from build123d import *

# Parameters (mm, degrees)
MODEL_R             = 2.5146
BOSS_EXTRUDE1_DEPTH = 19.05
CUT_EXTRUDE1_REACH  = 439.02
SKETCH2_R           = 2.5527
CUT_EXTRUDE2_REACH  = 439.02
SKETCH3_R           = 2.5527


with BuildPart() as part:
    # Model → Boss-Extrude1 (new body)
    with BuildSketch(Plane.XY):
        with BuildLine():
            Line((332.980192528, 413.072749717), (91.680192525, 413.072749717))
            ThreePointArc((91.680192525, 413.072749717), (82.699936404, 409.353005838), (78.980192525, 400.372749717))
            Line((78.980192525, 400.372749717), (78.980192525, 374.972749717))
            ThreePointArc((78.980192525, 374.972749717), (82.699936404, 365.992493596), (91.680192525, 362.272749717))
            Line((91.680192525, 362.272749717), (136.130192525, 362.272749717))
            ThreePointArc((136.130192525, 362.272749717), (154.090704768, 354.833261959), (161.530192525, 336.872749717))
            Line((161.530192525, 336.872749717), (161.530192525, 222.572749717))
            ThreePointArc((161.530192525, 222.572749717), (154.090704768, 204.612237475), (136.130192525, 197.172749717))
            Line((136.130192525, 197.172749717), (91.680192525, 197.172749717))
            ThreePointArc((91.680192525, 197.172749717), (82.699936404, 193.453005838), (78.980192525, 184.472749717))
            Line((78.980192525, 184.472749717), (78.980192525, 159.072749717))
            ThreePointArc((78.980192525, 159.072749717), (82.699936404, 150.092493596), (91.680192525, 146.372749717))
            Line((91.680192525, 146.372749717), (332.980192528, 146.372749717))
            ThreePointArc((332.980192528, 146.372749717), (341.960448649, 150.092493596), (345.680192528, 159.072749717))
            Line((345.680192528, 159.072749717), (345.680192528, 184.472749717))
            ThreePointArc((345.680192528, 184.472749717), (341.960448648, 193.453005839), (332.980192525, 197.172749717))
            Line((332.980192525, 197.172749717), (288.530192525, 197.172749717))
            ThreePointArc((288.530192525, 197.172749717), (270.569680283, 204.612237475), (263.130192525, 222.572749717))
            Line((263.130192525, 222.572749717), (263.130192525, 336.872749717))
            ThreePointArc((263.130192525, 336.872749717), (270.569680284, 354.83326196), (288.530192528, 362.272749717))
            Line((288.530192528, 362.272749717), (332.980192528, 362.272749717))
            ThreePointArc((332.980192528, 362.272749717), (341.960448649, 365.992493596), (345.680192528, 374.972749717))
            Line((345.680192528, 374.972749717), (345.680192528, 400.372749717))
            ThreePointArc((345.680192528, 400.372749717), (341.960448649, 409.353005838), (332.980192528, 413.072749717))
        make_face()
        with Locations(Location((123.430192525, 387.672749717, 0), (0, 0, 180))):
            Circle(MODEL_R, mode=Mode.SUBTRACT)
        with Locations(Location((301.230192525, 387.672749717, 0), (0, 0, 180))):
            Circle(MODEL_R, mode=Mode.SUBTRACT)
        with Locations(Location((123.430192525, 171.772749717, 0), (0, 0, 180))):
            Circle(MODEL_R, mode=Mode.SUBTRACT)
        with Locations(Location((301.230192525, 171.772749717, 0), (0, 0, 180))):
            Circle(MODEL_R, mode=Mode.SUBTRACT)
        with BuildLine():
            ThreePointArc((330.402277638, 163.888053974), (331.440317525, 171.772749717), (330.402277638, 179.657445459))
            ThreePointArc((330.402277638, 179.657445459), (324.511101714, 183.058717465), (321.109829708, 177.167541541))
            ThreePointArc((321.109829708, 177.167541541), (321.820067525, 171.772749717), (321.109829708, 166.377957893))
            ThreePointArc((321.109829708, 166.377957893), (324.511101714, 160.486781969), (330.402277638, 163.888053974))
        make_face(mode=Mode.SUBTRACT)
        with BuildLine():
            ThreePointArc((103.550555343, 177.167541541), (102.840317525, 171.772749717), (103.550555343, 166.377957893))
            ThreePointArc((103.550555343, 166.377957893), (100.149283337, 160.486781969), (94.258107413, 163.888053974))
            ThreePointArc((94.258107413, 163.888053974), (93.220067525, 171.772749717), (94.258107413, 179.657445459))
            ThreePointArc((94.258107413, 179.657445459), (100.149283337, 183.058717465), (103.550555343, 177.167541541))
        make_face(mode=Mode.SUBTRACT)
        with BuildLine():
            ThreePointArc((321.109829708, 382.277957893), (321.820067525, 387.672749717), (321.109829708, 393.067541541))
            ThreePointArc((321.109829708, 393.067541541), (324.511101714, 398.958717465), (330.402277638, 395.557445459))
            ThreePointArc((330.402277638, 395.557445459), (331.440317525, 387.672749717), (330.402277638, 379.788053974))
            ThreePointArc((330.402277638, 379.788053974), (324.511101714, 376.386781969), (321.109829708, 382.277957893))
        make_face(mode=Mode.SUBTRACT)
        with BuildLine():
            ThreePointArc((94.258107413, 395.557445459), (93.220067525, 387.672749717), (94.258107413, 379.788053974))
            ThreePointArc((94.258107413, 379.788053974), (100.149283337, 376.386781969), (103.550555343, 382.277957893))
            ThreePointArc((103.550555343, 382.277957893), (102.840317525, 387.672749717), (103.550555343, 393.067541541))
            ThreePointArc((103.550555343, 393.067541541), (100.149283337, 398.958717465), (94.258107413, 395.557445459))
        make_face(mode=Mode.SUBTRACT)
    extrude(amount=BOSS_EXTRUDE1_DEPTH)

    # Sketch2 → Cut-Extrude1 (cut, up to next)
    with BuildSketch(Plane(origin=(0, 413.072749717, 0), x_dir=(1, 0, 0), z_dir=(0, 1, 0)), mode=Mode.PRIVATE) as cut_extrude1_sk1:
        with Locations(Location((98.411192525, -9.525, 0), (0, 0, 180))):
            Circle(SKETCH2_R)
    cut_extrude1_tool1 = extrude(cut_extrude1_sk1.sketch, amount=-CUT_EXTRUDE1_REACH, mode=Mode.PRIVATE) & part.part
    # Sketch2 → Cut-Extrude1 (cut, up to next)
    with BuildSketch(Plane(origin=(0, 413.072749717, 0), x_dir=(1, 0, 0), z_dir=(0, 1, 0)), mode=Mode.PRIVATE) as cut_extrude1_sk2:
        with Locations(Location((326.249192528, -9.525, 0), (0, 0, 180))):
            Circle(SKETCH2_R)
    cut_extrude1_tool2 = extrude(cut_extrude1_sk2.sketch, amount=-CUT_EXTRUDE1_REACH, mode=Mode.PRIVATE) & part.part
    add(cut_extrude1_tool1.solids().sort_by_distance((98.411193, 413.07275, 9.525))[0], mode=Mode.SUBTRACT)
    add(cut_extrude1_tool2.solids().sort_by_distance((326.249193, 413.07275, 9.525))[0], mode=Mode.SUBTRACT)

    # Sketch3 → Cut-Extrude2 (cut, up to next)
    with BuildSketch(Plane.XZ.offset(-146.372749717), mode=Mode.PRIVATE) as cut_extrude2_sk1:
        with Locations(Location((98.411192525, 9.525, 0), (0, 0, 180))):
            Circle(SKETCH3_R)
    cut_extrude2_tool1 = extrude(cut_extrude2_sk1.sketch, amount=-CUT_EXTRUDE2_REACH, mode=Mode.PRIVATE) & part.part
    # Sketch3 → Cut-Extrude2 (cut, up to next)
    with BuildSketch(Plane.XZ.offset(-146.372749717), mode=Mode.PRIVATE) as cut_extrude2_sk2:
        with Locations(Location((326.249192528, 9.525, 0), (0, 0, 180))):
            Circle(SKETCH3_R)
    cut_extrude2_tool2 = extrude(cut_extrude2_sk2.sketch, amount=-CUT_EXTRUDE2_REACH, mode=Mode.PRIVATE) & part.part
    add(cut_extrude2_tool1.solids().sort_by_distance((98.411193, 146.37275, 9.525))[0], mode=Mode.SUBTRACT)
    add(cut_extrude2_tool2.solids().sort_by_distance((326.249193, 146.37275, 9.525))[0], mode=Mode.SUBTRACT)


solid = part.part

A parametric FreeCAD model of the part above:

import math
import FreeCAD as App
import Part
import Sketcher
Q = App.Units.Quantity

doc = App.newDocument("Part")
body = doc.addObject("PartDesign::Body", "Body")

sketch1 = body.newObject("Sketcher::SketchObject", "Sketch")
sketch1.AttachmentSupport = (doc.getObject("XY_Plane"), [""])
sketch1.MapMode = "FlatFace"
sketch1.addGeometry(Part.LineSegment(App.Vector(333, 413.1, 0), App.Vector(91.7, 413.1, 0)), False)
sketch1.addGeometry(Part.ArcOfCircle(Part.Circle(App.Vector(91.7, 400.4, 0), App.Vector(0, 0, 1), 12.7), math.radians(90), math.radians(180)), False)
sketch1.addGeometry(Part.LineSegment(App.Vector(79, 400.4, 0), App.Vector(79, 375, 0)), False)
sketch1.addGeometry(Part.ArcOfCircle(Part.Circle(App.Vector(91.7, 375, 0), App.Vector(0, 0, 1), 12.7), math.radians(180), math.radians(270)), False)
sketch1.addGeometry(Part.LineSegment(App.Vector(91.7, 362.3, 0), App.Vector(136.1, 362.3, 0)), False)
sketch1.addGeometry(Part.ArcOfCircle(Part.Circle(App.Vector(136.1, 336.9, 0), App.Vector(0, 0, 1), 25.4), math.radians(0), math.radians(90)), False)
sketch1.addGeometry(Part.LineSegment(App.Vector(161.5, 336.9, 0), App.Vector(161.5, 222.6, 0)), False)
sketch1.addGeometry(Part.ArcOfCircle(Part.Circle(App.Vector(136.1, 222.6, 0), App.Vector(0, 0, 1), 25.4), math.radians(-90), math.radians(0)), False)
sketch1.addGeometry(Part.LineSegment(App.Vector(136.1, 197.2, 0), App.Vector(91.7, 197.2, 0)), False)
sketch1.addGeometry(Part.ArcOfCircle(Part.Circle(App.Vector(91.7, 184.5, 0), App.Vector(0, 0, 1), 12.7), math.radians(90), math.radians(180)), False)
sketch1.addGeometry(Part.LineSegment(App.Vector(79, 184.5, 0), App.Vector(79, 159.1, 0)), False)
sketch1.addGeometry(Part.ArcOfCircle(Part.Circle(App.Vector(91.7, 159.1, 0), App.Vector(0, 0, 1), 12.7), math.radians(180), math.radians(270)), False)
sketch1.addGeometry(Part.LineSegment(App.Vector(91.7, 146.4, 0), App.Vector(333, 146.4, 0)), False)
sketch1.addGeometry(Part.ArcOfCircle(Part.Circle(App.Vector(333, 159.1, 0), App.Vector(0, 0, 1), 12.7), math.radians(-90), math.radians(0)), False)
sketch1.addGeometry(Part.LineSegment(App.Vector(345.7, 159.1, 0), App.Vector(345.7, 184.5, 0)), False)
sketch1.addGeometry(Part.ArcOfCircle(Part.Circle(App.Vector(333, 184.5, 0), App.Vector(0, 0, 1), 12.7), math.radians(0), math.radians(90)), False)
sketch1.addGeometry(Part.LineSegment(App.Vector(333, 197.2, 0), App.Vector(288.5, 197.2, 0)), False)
sketch1.addGeometry(Part.ArcOfCircle(Part.Circle(App.Vector(288.5, 222.6, 0), App.Vector(0, 0, 1), 25.4), math.radians(180), math.radians(270)), False)
sketch1.addGeometry(Part.LineSegment(App.Vector(263.1, 222.6, 0), App.Vector(263.1, 336.9, 0)), False)
sketch1.addGeometry(Part.ArcOfCircle(Part.Circle(App.Vector(288.5, 336.9, 0), App.Vector(0, 0, 1), 25.4), math.radians(90), math.radians(180)), False)
sketch1.addGeometry(Part.LineSegment(App.Vector(288.5, 362.3, 0), App.Vector(333, 362.3, 0)), False)
sketch1.addGeometry(Part.ArcOfCircle(Part.Circle(App.Vector(333, 375, 0), App.Vector(0, 0, 1), 12.7), math.radians(-90), math.radians(0)), False)
sketch1.addGeometry(Part.LineSegment(App.Vector(345.7, 375, 0), App.Vector(345.7, 400.4, 0)), False)
sketch1.addGeometry(Part.ArcOfCircle(Part.Circle(App.Vector(333, 400.4, 0), App.Vector(0, 0, 1), 12.7), math.radians(0), math.radians(90)), False)
sketch1.addGeometry(Part.ArcOfCircle(Part.Circle(App.Vector(98.9, 178.4, 0), App.Vector(0, 0, 1), 4.8), math.radians(-15), math.radians(165)), False)
sketch1.addGeometry(Part.ArcOfCircle(Part.Circle(App.Vector(123.7, 171.8, 0), App.Vector(0, 0, 1), 20.8), math.radians(165), math.radians(195)), False)
sketch1.addGeometry(Part.ArcOfCircle(Part.Circle(App.Vector(98.9, 165.1, 0), App.Vector(0, 0, 1), 4.8), math.radians(-165), math.radians(15)), False)
sketch1.addGeometry(Part.ArcOfCircle(Part.Circle(App.Vector(123.7, 171.8, 0), App.Vector(0, 0, 1), 30.5), math.radians(165), math.radians(195)), False)
sketch1.addGeometry(Part.Circle(App.Vector(123.4, 171.8, 0), App.Vector(0, 0, 1), 2.5), False)
sketch1.addGeometry(Part.Circle(App.Vector(301.2, 171.8, 0), App.Vector(0, 0, 1), 2.5), False)
sketch1.addGeometry(Part.ArcOfCircle(Part.Circle(App.Vector(301, 171.8, 0), App.Vector(0, 0, 1), 30.5), math.radians(-15), math.radians(15)), False)
sketch1.addGeometry(Part.ArcOfCircle(Part.Circle(App.Vector(325.8, 165.1, 0), App.Vector(0, 0, 1), 4.8), math.radians(165), math.radians(345)), False)
sketch1.addGeometry(Part.ArcOfCircle(Part.Circle(App.Vector(301, 171.8, 0), App.Vector(0, 0, 1), 20.8), math.radians(-15), math.radians(15)), False)
sketch1.addGeometry(Part.ArcOfCircle(Part.Circle(App.Vector(325.8, 178.4, 0), App.Vector(0, 0, 1), 4.8), math.radians(15), math.radians(195)), False)
sketch1.addGeometry(Part.ArcOfCircle(Part.Circle(App.Vector(123.7, 387.7, 0), App.Vector(0, 0, 1), 30.5), math.radians(165), math.radians(195)), False)
sketch1.addGeometry(Part.ArcOfCircle(Part.Circle(App.Vector(98.9, 394.3, 0), App.Vector(0, 0, 1), 4.8), math.radians(-15), math.radians(165)), False)
sketch1.addGeometry(Part.ArcOfCircle(Part.Circle(App.Vector(123.7, 387.7, 0), App.Vector(0, 0, 1), 20.8), math.radians(165), math.radians(195)), False)
sketch1.addGeometry(Part.ArcOfCircle(Part.Circle(App.Vector(98.9, 381, 0), App.Vector(0, 0, 1), 4.8), math.radians(-165), math.radians(15)), False)
sketch1.addGeometry(Part.Circle(App.Vector(123.4, 387.7, 0), App.Vector(0, 0, 1), 2.5), False)
sketch1.addGeometry(Part.Circle(App.Vector(301.2, 387.7, 0), App.Vector(0, 0, 1), 2.5), False)
sketch1.addGeometry(Part.ArcOfCircle(Part.Circle(App.Vector(325.8, 381, 0), App.Vector(0, 0, 1), 4.8), math.radians(165), math.radians(345)), False)
sketch1.addGeometry(Part.ArcOfCircle(Part.Circle(App.Vector(301, 387.7, 0), App.Vector(0, 0, 1), 20.8), math.radians(-15), math.radians(15)), False)
sketch1.addGeometry(Part.ArcOfCircle(Part.Circle(App.Vector(325.8, 394.3, 0), App.Vector(0, 0, 1), 4.8), math.radians(15), math.radians(195)), False)
sketch1.addGeometry(Part.ArcOfCircle(Part.Circle(App.Vector(301, 387.7, 0), App.Vector(0, 0, 1), 30.5), math.radians(-15), math.radians(15)), False)
sketch1.addConstraint(Sketcher.Constraint("Tangent", 0, 2, 1, 1))
sketch1.addConstraint(Sketcher.Constraint("Tangent", 1, 2, 2, 1))
sketch1.addConstraint(Sketcher.Constraint("Tangent", 2, 2, 3, 1))
sketch1.addConstraint(Sketcher.Constraint("Tangent", 3, 2, 4, 1))
sketch1.addConstraint(Sketcher.Constraint("Tangent", 4, 2, 5, 2))
sketch1.addConstraint(Sketcher.Constraint("Tangent", 5, 1, 6, 1))
sketch1.addConstraint(Sketcher.Constraint("Tangent", 6, 2, 7, 2))
sketch1.addConstraint(Sketcher.Constraint("Tangent", 7, 1, 8, 1))
sketch1.addConstraint(Sketcher.Constraint("Tangent", 8, 2, 9, 1))
sketch1.addConstraint(Sketcher.Constraint("Tangent", 9, 2, 10, 1))
sketch1.addConstraint(Sketcher.Constraint("Tangent", 10, 2, 11, 1))
sketch1.addConstraint(Sketcher.Constraint("Tangent", 11, 2, 12, 1))
sketch1.addConstraint(Sketcher.Constraint("Tangent", 12, 2, 13, 1))
sketch1.addConstraint(Sketcher.Constraint("Tangent", 13, 2, 14, 1))
sketch1.addConstraint(Sketcher.Constraint("Tangent", 14, 2, 15, 1))
sketch1.addConstraint(Sketcher.Constraint("Tangent", 15, 2, 16, 1))
sketch1.addConstraint(Sketcher.Constraint("Tangent", 16, 2, 17, 2))
sketch1.addConstraint(Sketcher.Constraint("Tangent", 17, 1, 18, 1))
sketch1.addConstraint(Sketcher.Constraint("Tangent", 18, 2, 19, 2))
sketch1.addConstraint(Sketcher.Constraint("Tangent", 19, 1, 20, 1))
sketch1.addConstraint(Sketcher.Constraint("Tangent", 20, 2, 21, 1))
sketch1.addConstraint(Sketcher.Constraint("Tangent", 21, 2, 22, 1))
sketch1.addConstraint(Sketcher.Constraint("Tangent", 22, 2, 23, 1))
sketch1.addConstraint(Sketcher.Constraint("Tangent", 23, 2, 0, 1))
sketch1.addConstraint(Sketcher.Constraint("Tangent", 24, 1, 25, 1))
sketch1.addConstraint(Sketcher.Constraint("Tangent", 25, 2, 26, 2))
sketch1.addConstraint(Sketcher.Constraint("Tangent", 26, 1, 27, 2))
sketch1.addConstraint(Sketcher.Constraint("Tangent", 27, 1, 24, 2))
sketch1.addConstraint(Sketcher.Constraint("Tangent", 30, 1, 31, 2))
sketch1.addConstraint(Sketcher.Constraint("Tangent", 31, 1, 32, 1))
sketch1.addConstraint(Sketcher.Constraint("Tangent", 32, 2, 33, 2))
sketch1.addConstraint(Sketcher.Constraint("Tangent", 33, 1, 30, 2))
sketch1.addConstraint(Sketcher.Constraint("Tangent", 34, 1, 35, 2))
sketch1.addConstraint(Sketcher.Constraint("Tangent", 35, 1, 36, 1))
sketch1.addConstraint(Sketcher.Constraint("Tangent", 36, 2, 37, 2))
sketch1.addConstraint(Sketcher.Constraint("Tangent", 37, 1, 34, 2))
sketch1.addConstraint(Sketcher.Constraint("Tangent", 40, 1, 41, 1))
sketch1.addConstraint(Sketcher.Constraint("Tangent", 41, 2, 42, 2))
sketch1.addConstraint(Sketcher.Constraint("Tangent", 42, 1, 43, 2))
sketch1.addConstraint(Sketcher.Constraint("Tangent", 43, 1, 40, 2))
sketch1.addConstraint(Sketcher.Constraint("Horizontal", 0))
sketch1.addConstraint(Sketcher.Constraint("Vertical", 2))
sketch1.addConstraint(Sketcher.Constraint("Horizontal", 4))
sketch1.addConstraint(Sketcher.Constraint("Vertical", 6))
sketch1.addConstraint(Sketcher.Constraint("Horizontal", 8))
sketch1.addConstraint(Sketcher.Constraint("Vertical", 10))
sketch1.addConstraint(Sketcher.Constraint("Horizontal", 12))
sketch1.addConstraint(Sketcher.Constraint("Vertical", 14))
sketch1.addConstraint(Sketcher.Constraint("Horizontal", 16))
sketch1.addConstraint(Sketcher.Constraint("Vertical", 18))
sketch1.addConstraint(Sketcher.Constraint("Horizontal", 20))
sketch1.addConstraint(Sketcher.Constraint("Vertical", 22))
sketch1.addConstraint(Sketcher.Constraint("Coincident", 27, 3, 25, 3))
sketch1.addConstraint(Sketcher.Constraint("Coincident", 32, 3, 30, 3))
sketch1.addConstraint(Sketcher.Constraint("Coincident", 36, 3, 34, 3))
sketch1.addConstraint(Sketcher.Constraint("Coincident", 43, 3, 41, 3))
sketch1.addConstraint(Sketcher.Constraint("Equal", 1, 3))
sketch1.addConstraint(Sketcher.Constraint("Equal", 5, 7))
sketch1.addConstraint(Sketcher.Constraint("Equal", 3, 9))
sketch1.addConstraint(Sketcher.Constraint("Equal", 9, 11))
sketch1.addConstraint(Sketcher.Constraint("Equal", 11, 13))
sketch1.addConstraint(Sketcher.Constraint("Equal", 13, 15))
sketch1.addConstraint(Sketcher.Constraint("Equal", 7, 17))
sketch1.addConstraint(Sketcher.Constraint("Equal", 17, 19))
sketch1.addConstraint(Sketcher.Constraint("Equal", 15, 21))
sketch1.addConstraint(Sketcher.Constraint("Equal", 21, 23))
sketch1.addConstraint(Sketcher.Constraint("Equal", 28, 29))
sketch1.addConstraint(Sketcher.Constraint("Equal", 27, 30))
sketch1.addConstraint(Sketcher.Constraint("Equal", 26, 31))
sketch1.addConstraint(Sketcher.Constraint("Equal", 30, 34))
sketch1.addConstraint(Sketcher.Constraint("Equal", 33, 35))
sketch1.addConstraint(Sketcher.Constraint("Equal", 29, 38))
sketch1.addConstraint(Sketcher.Constraint("Equal", 38, 39))
sketch1.addConstraint(Sketcher.Constraint("Equal", 37, 40))
sketch1.addConstraint(Sketcher.Constraint("Equal", 36, 41))
sketch1.addConstraint(Sketcher.Constraint("Horizontal", 9, 3, 15, 3))
sketch1.addConstraint(Sketcher.Constraint("Horizontal", 5, 3, 19, 3))
sketch1.addConstraint(Sketcher.Constraint("Horizontal", 27, 3, 28, 3))
sketch1.addConstraint(Sketcher.Constraint("Horizontal", 28, 3, 29, 3))
sketch1.addConstraint(Sketcher.Constraint("Horizontal", 29, 3, 30, 3))
sketch1.addConstraint(Sketcher.Constraint("Horizontal", 26, 3, 31, 3))
sketch1.addConstraint(Sketcher.Constraint("Horizontal", 24, 3, 33, 3))
sketch1.addConstraint(Sketcher.Constraint("Horizontal", 36, 3, 38, 3))
sketch1.addConstraint(Sketcher.Constraint("Horizontal", 38, 3, 39, 3))
sketch1.addConstraint(Sketcher.Constraint("Horizontal", 37, 3, 40, 3))
sketch1.addConstraint(Sketcher.Constraint("Horizontal", 39, 3, 41, 3))
sketch1.addConstraint(Sketcher.Constraint("Horizontal", 35, 3, 42, 3))
sketch1.addConstraint(Sketcher.Constraint("Vertical", 3, 3, 9, 3))
sketch1.addConstraint(Sketcher.Constraint("Vertical", 15, 3, 21, 3))
sketch1.addConstraint(Sketcher.Constraint("Vertical", 24, 3, 26, 3))
sketch1.addConstraint(Sketcher.Constraint("Vertical", 27, 3, 34, 3))
sketch1.addConstraint(Sketcher.Constraint("Vertical", 26, 3, 35, 3))
sketch1.addConstraint(Sketcher.Constraint("Vertical", 35, 3, 37, 3))
sketch1.addConstraint(Sketcher.Constraint("Vertical", 28, 3, 38, 3))
sketch1.addConstraint(Sketcher.Constraint("Vertical", 29, 3, 39, 3))
sketch1.addConstraint(Sketcher.Constraint("Vertical", 33, 3, 40, 3))
sketch1.addConstraint(Sketcher.Constraint("Equal", 8, 16))
sketch1.addConstraint(Sketcher.Constraint("Equal", 2, 10))
sketch1.addConstraint(Sketcher.Constraint("Radius", 5, Q("1 in")))
sketch1.addConstraint(Sketcher.Constraint("Radius", 1, Q("0.5 in")))
sketch1.addConstraint(Sketcher.Constraint("DistanceY", 2, 2, 2, 1, Q("1 in")))
sketch1.addConstraint(Sketcher.Constraint("Diameter", 28, Q("0.198 in")))
sketch1.addConstraint(Sketcher.Constraint("DistanceX", 0, 2, 0, 1, Q("9.5 in")))
sketch1.addConstraint(Sketcher.Constraint("DistanceY", 6, 2, 6, 1, Q("4.5 in")))
sketch1.addConstraint(Sketcher.Constraint("DistanceX", 4, 1, 4, 2, Q("1.75 in")))
sketch1.addConstraint(Sketcher.Constraint("DistanceY", -1, 1, 24, 1, Q("6.9751001 in")))
sketch1.addConstraint(Sketcher.Constraint("DistanceY", -1, 1, 35, 1, Q("15.4751001 in")))
sketch1.addConstraint(Sketcher.Constraint("Radius", 24, 4.810125))
sketch1.addConstraint(Sketcher.Constraint("Radius", 25, 20.843875))
sketch1.addConstraint(Sketcher.Constraint("DistanceY", -1, 1, 1, 3, 400.37275))
sketch1.addConstraint(Sketcher.Constraint("DistanceX", -1, 1, 24, 3, 98.904331))
sketch1.addConstraint(Sketcher.Constraint("DistanceY", -1, 1, 25, 3, 171.77275))
sketch1.addConstraint(Sketcher.Constraint("DistanceX", -1, 1, 31, 1, 321.10983))
sketch1.addConstraint(Sketcher.Constraint("DistanceX", -1, 1, 1, 3, 91.680193))
sketch1.addConstraint(Sketcher.Constraint("DistanceX", -1, 1, 28, 3, 123.430193))
sketch1.addConstraint(Sketcher.Constraint("DistanceX", -1, 1, 29, 3, 301.230193))
pad1 = body.newObject("PartDesign::Pad", "Pad")
pad1.Profile = sketch1
pad1.Length = Q("0.75 in")

sketch2 = body.newObject("Sketcher::SketchObject", "Sketch001")
sketch2.AttachmentSupport = (doc.getObject("XZ_Plane"), [""])
sketch2.MapMode = "FlatFace"
sketch2.AttachmentOffset = App.Placement(App.Vector(0, 0, -413.07275), App.Rotation())
sketch2.addGeometry(Part.Circle(App.Vector(98.4, 9.5, 0), App.Vector(0, 0, 1), 2.6), False)
sketch2.addConstraint(Sketcher.Constraint("Diameter", 0, Q("0.201 in")))
sketch2.addConstraint(Sketcher.Constraint("DistanceY", -1, 1, 0, 3, Q("0.375 in")))
sketch2.addConstraint(Sketcher.Constraint("DistanceX", -1, 1, 0, 3, 98.411193))
pocket1 = body.newObject("PartDesign::Pocket", "Pocket")
pocket1.Profile = sketch2
pocket1.Type = "UpToFirst"
pocket1.Reversed = True

sketch3 = body.newObject("Sketcher::SketchObject", "Sketch002")
sketch3.AttachmentSupport = (doc.getObject("XZ_Plane"), [""])
sketch3.MapMode = "FlatFace"
sketch3.AttachmentOffset = App.Placement(App.Vector(0, 0, -413.07275), App.Rotation())
sketch3.addGeometry(Part.Circle(App.Vector(326.2, 9.5, 0), App.Vector(0, 0, 1), 2.6), False)
sketch3.addConstraint(Sketcher.Constraint("Diameter", 0, Q("0.201 in")))
sketch3.addConstraint(Sketcher.Constraint("DistanceY", -1, 1, 0, 3, Q("0.375 in")))
sketch3.addConstraint(Sketcher.Constraint("DistanceX", -1, 1, 0, 3, 326.249193))
pocket2 = body.newObject("PartDesign::Pocket", "Pocket001")
pocket2.Profile = sketch3
pocket2.Type = "UpToFirst"
pocket2.Reversed = True

sketch4 = body.newObject("Sketcher::SketchObject", "Sketch003")
sketch4.AttachmentSupport = (doc.getObject("XZ_Plane"), [""])
sketch4.MapMode = "FlatFace"
sketch4.AttachmentOffset = App.Placement(App.Vector(0, 0, -146.37275), App.Rotation())
sketch4.addGeometry(Part.Circle(App.Vector(98.4, 9.5, 0), App.Vector(0, 0, 1), 2.6), False)
sketch4.addConstraint(Sketcher.Constraint("Diameter", 0, Q("0.201 in")))
sketch4.addConstraint(Sketcher.Constraint("DistanceY", -1, 1, 0, 3, Q("0.375 in")))
sketch4.addConstraint(Sketcher.Constraint("DistanceX", -1, 1, 0, 3, 98.411193))
pocket3 = body.newObject("PartDesign::Pocket", "Pocket002")
pocket3.Profile = sketch4
pocket3.Type = "UpToFirst"

sketch5 = body.newObject("Sketcher::SketchObject", "Sketch004")
sketch5.AttachmentSupport = (doc.getObject("XZ_Plane"), [""])
sketch5.MapMode = "FlatFace"
sketch5.AttachmentOffset = App.Placement(App.Vector(0, 0, -146.37275), App.Rotation())
sketch5.addGeometry(Part.Circle(App.Vector(326.2, 9.5, 0), App.Vector(0, 0, 1), 2.6), False)
sketch5.addConstraint(Sketcher.Constraint("Diameter", 0, Q("0.201 in")))
sketch5.addConstraint(Sketcher.Constraint("DistanceY", -1, 1, 0, 3, Q("0.375 in")))
sketch5.addConstraint(Sketcher.Constraint("DistanceX", -1, 1, 0, 3, 326.249193))
pocket4 = body.newObject("PartDesign::Pocket", "Pocket003")
pocket4.Profile = sketch5
pocket4.Type = "UpToFirst"

doc.recompute()
